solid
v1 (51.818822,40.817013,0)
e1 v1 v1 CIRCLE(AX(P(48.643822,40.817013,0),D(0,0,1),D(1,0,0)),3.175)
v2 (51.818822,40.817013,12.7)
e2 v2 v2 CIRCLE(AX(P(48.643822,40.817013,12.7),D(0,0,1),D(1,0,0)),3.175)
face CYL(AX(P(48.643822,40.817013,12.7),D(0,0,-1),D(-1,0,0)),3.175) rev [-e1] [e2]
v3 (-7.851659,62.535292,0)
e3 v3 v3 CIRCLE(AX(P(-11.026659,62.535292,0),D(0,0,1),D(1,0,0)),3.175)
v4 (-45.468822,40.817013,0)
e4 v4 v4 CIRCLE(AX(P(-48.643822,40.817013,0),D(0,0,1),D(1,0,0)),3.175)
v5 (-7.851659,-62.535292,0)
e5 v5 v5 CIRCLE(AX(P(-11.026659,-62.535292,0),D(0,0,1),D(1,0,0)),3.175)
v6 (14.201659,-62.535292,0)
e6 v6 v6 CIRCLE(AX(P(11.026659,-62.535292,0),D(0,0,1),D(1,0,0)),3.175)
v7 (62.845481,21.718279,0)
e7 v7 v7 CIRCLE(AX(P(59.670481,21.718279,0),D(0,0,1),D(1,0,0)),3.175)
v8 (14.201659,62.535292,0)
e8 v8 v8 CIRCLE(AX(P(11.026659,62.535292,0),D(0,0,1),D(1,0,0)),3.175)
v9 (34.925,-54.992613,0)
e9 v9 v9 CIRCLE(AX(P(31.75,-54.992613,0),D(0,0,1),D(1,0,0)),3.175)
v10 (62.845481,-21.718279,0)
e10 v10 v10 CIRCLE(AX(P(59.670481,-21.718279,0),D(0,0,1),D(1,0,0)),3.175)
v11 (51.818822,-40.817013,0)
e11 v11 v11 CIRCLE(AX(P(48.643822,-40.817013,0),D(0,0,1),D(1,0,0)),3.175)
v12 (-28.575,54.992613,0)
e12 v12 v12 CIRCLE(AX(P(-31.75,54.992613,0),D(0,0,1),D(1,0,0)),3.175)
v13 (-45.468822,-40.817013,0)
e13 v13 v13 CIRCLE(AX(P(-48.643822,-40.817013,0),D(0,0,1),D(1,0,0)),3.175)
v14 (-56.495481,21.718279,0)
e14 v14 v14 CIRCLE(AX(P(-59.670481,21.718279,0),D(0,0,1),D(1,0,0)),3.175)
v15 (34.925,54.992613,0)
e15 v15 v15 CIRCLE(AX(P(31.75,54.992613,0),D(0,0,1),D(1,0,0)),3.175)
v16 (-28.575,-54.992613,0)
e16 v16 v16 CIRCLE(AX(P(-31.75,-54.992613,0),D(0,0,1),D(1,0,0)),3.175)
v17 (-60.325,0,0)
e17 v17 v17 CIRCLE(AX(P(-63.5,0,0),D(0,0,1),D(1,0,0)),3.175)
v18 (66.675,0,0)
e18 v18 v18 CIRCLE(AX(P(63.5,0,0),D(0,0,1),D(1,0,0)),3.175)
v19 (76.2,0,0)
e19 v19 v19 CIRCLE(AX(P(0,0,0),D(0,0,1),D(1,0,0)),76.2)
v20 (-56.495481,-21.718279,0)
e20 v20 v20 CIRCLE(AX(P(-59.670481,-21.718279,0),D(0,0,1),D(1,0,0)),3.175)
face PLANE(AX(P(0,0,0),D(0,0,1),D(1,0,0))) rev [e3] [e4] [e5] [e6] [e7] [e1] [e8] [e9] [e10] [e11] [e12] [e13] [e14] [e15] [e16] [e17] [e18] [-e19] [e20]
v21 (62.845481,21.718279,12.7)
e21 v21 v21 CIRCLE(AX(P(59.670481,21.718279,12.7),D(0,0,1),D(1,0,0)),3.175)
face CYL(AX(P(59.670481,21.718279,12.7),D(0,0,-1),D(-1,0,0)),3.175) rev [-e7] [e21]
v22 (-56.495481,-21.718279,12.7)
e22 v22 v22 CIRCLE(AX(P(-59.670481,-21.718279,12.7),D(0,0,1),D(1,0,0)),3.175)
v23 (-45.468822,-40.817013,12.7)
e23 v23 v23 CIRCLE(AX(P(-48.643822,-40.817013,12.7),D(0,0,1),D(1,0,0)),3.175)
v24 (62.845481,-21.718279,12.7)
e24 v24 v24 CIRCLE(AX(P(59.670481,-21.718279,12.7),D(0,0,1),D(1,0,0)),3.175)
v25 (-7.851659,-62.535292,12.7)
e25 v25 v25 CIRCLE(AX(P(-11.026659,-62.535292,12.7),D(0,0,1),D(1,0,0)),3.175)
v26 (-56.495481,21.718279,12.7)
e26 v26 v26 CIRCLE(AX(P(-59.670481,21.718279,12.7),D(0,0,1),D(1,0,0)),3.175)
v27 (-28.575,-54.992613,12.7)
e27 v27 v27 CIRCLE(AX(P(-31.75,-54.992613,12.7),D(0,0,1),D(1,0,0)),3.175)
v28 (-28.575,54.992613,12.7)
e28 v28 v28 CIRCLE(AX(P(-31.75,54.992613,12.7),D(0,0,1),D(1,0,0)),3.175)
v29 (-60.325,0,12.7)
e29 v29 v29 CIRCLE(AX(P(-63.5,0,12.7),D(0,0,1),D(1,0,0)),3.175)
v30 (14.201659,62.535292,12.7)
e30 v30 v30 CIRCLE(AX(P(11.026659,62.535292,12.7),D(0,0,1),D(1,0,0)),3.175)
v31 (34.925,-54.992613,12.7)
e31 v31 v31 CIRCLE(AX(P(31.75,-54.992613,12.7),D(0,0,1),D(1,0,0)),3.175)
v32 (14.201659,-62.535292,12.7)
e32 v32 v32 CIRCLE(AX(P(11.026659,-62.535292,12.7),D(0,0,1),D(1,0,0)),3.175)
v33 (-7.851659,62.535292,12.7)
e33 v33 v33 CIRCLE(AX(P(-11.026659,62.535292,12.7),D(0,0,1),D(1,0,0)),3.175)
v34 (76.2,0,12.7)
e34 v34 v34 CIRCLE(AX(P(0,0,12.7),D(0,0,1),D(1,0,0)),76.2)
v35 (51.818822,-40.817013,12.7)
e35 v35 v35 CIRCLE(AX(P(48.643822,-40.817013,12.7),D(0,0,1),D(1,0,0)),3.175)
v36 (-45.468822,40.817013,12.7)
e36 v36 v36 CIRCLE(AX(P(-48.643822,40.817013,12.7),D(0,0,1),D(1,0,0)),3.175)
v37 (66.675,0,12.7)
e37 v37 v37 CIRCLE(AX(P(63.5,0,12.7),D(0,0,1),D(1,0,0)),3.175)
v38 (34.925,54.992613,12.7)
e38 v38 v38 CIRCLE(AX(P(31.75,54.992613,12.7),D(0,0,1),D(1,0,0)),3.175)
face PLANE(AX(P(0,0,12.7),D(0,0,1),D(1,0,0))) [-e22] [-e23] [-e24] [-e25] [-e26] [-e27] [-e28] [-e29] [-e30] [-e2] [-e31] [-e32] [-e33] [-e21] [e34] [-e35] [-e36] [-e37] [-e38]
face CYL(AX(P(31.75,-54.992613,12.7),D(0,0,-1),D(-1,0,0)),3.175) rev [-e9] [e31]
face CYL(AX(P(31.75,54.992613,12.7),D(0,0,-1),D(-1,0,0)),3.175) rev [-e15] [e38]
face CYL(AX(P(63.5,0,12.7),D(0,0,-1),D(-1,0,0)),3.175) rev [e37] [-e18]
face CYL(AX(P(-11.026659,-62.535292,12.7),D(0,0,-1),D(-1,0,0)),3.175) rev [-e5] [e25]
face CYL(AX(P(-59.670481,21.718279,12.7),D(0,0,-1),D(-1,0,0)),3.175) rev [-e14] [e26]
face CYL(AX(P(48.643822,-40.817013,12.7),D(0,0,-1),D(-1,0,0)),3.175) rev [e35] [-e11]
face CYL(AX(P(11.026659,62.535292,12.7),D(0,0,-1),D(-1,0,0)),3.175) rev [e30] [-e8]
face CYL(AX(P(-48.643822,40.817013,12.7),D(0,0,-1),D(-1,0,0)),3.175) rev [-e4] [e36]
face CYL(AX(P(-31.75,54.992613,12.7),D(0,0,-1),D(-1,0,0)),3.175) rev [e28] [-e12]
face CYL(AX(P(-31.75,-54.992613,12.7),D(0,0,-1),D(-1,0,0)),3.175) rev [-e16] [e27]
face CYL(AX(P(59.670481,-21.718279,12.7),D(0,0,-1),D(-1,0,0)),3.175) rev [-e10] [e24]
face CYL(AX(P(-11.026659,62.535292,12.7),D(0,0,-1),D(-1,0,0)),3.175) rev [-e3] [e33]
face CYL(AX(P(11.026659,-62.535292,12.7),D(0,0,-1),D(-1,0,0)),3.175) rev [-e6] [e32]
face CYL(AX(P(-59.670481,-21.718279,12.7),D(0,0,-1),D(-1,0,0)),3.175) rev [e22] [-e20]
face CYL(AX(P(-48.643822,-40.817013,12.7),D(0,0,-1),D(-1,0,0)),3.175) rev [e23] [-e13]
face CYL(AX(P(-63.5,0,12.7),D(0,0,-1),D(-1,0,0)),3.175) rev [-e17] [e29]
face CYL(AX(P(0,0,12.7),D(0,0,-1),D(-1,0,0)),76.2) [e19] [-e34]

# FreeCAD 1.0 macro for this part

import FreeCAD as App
import Part
import Sketcher

V = App.Vector
Q = App.Units.Quantity

doc = App.newDocument("Part")
body = doc.addObject("PartDesign::Body", "Body")

# Sketch on XY plane
sketch1 = body.newObject("Sketcher::SketchObject", "Sketch")
sketch1.AttachmentSupport = (doc.getObject("XY_Plane"), [""])
sketch1.MapMode = "FlatFace"
sketch1.addGeometry([
    Part.Circle(V(0, 0, 0), V(0, 0, 1), 76.2),  # 0
    Part.Circle(V(-48.6, -40.8, 0), V(0, 0, 1), 3.2),  # 1
    Part.Circle(V(-31.8, -55, 0), V(0, 0, 1), 3.2),  # 2
    Part.Circle(V(-11, -62.5, 0), V(0, 0, 1), 3.2),  # 3
    Part.Circle(V(-59.7, -21.7, 0), V(0, 0, 1), 3.2),  # 4
    Part.Circle(V(11, -62.5, 0), V(0, 0, 1), 3.2),  # 5
    Part.Circle(V(31.8, -55, 0), V(0, 0, 1), 3.2),  # 6
    Part.Circle(V(48.6, -40.8, 0), V(0, 0, 1), 3.2),  # 7
    Part.Circle(V(59.7, -21.7, 0), V(0, 0, 1), 3.2),  # 8
    Part.Circle(V(-63.5, 0, 0), V(0, 0, 1), 3.2),  # 9
    Part.Circle(V(-59.7, 21.7, 0), V(0, 0, 1), 3.2),  # 10
    Part.Circle(V(-48.6, 40.8, 0), V(0, 0, 1), 3.2),  # 11
    Part.Circle(V(-31.8, 55, 0), V(0, 0, 1), 3.2),  # 12
    Part.Circle(V(-11, 62.5, 0), V(0, 0, 1), 3.2),  # 13
    Part.Circle(V(63.5, 0, 0), V(0, 0, 1), 3.2),  # 14
    Part.Circle(V(59.7, 21.7, 0), V(0, 0, 1), 3.2),  # 15
    Part.Circle(V(11, 62.5, 0), V(0, 0, 1), 3.2),  # 16
    Part.Circle(V(31.8, 55, 0), V(0, 0, 1), 3.2),  # 17
    Part.Circle(V(48.6, 40.8, 0), V(0, 0, 1), 3.2),  # 18
], False)
sketch1.addConstraint([
    Sketcher.Constraint("Coincident", 0, 3, -1, 1),
    Sketcher.Constraint("Equal", 1, 2),
    Sketcher.Constraint("Equal", 2, 3),
    Sketcher.Constraint("Equal", 3, 4),
    Sketcher.Constraint("Equal", 4, 5),
    Sketcher.Constraint("Equal", 5, 6),
    Sketcher.Constraint("Equal", 6, 7),
    Sketcher.Constraint("Equal", 7, 8),
    Sketcher.Constraint("Equal", 8, 9),
    Sketcher.Constraint("Equal", 9, 10),
    Sketcher.Constraint("Equal", 10, 11),
    Sketcher.Constraint("Equal", 11, 12),
    Sketcher.Constraint("Equal", 12, 13),
    Sketcher.Constraint("Equal", 13, 14),
    Sketcher.Constraint("Equal", 14, 15),
    Sketcher.Constraint("Equal", 15, 16),
    Sketcher.Constraint("Equal", 16, 17),
    Sketcher.Constraint("Equal", 17, 18),
    Sketcher.Constraint("Symmetric", 8, 3, 10, 3, -1, 1),
    Sketcher.Constraint("Symmetric", 7, 3, 11, 3, -1, 1),
    Sketcher.Constraint("Symmetric", 6, 3, 12, 3, -1, 1),
    Sketcher.Constraint("Symmetric", 5, 3, 13, 3, -1, 1),
    Sketcher.Constraint("Symmetric", 9, 3, 14, 3, -1, 1),
    Sketcher.Constraint("Symmetric", 4, 3, 15, 3, -1, 1),
    Sketcher.Constraint("Symmetric", 3, 3, 16, 3, -1, 1),
    Sketcher.Constraint("Symmetric", 2, 3, 17, 3, -1, 1),
    Sketcher.Constraint("Symmetric", 1, 3, 18, 3, -1, 1),
    Sketcher.Constraint("Symmetric", 3, 3, 5, 3, -2),
    Sketcher.Constraint("Symmetric", 2, 3, 6, 3, -2),
    Sketcher.Constraint("Symmetric", 1, 3, 7, 3, -2),
    Sketcher.Constraint("Symmetric", 4, 3, 8, 3, -2),
    Sketcher.Constraint("PointOnObject", 9, 3, -1),
    Sketcher.Constraint("Diameter", 0, Q("6 in")),
    Sketcher.Constraint("Diameter", 1, Q("0.25 in")),
    Sketcher.Constraint("DistanceX", 9, 3, -1, 1, Q("2.5 in")),
    Sketcher.Constraint("DistanceX", 2, 3, 6, 3, Q("2.5 in")),
    Sketcher.Constraint("DistanceY", 2, 3, 1, 3, Q("14.1756 mm")),
    Sketcher.Constraint("DistanceX", 3, 3, -1, 1, Q("11.026659 mm")),
    Sketcher.Constraint("DistanceX", 4, 3, -1, 1, Q("59.670481 mm")),
    Sketcher.Constraint("DistanceY", 4, 3, -1, 1, Q("21.718279 mm")),
    Sketcher.Constraint("DistanceY", 3, 3, 2, 3, Q("7.542679 mm")),
    Sketcher.Constraint("DistanceX", 4, 3, 1, 3, Q("11.026659 mm")),
    Sketcher.Constraint("DistanceY", 1, 3, -1, 1, Q("40.817013 mm")),
])
pad1 = body.newObject("PartDesign::Pad", "Pad")
pad1.Profile = sketch1
pad1.Length = Q("0.5 in")

doc.recompute()
